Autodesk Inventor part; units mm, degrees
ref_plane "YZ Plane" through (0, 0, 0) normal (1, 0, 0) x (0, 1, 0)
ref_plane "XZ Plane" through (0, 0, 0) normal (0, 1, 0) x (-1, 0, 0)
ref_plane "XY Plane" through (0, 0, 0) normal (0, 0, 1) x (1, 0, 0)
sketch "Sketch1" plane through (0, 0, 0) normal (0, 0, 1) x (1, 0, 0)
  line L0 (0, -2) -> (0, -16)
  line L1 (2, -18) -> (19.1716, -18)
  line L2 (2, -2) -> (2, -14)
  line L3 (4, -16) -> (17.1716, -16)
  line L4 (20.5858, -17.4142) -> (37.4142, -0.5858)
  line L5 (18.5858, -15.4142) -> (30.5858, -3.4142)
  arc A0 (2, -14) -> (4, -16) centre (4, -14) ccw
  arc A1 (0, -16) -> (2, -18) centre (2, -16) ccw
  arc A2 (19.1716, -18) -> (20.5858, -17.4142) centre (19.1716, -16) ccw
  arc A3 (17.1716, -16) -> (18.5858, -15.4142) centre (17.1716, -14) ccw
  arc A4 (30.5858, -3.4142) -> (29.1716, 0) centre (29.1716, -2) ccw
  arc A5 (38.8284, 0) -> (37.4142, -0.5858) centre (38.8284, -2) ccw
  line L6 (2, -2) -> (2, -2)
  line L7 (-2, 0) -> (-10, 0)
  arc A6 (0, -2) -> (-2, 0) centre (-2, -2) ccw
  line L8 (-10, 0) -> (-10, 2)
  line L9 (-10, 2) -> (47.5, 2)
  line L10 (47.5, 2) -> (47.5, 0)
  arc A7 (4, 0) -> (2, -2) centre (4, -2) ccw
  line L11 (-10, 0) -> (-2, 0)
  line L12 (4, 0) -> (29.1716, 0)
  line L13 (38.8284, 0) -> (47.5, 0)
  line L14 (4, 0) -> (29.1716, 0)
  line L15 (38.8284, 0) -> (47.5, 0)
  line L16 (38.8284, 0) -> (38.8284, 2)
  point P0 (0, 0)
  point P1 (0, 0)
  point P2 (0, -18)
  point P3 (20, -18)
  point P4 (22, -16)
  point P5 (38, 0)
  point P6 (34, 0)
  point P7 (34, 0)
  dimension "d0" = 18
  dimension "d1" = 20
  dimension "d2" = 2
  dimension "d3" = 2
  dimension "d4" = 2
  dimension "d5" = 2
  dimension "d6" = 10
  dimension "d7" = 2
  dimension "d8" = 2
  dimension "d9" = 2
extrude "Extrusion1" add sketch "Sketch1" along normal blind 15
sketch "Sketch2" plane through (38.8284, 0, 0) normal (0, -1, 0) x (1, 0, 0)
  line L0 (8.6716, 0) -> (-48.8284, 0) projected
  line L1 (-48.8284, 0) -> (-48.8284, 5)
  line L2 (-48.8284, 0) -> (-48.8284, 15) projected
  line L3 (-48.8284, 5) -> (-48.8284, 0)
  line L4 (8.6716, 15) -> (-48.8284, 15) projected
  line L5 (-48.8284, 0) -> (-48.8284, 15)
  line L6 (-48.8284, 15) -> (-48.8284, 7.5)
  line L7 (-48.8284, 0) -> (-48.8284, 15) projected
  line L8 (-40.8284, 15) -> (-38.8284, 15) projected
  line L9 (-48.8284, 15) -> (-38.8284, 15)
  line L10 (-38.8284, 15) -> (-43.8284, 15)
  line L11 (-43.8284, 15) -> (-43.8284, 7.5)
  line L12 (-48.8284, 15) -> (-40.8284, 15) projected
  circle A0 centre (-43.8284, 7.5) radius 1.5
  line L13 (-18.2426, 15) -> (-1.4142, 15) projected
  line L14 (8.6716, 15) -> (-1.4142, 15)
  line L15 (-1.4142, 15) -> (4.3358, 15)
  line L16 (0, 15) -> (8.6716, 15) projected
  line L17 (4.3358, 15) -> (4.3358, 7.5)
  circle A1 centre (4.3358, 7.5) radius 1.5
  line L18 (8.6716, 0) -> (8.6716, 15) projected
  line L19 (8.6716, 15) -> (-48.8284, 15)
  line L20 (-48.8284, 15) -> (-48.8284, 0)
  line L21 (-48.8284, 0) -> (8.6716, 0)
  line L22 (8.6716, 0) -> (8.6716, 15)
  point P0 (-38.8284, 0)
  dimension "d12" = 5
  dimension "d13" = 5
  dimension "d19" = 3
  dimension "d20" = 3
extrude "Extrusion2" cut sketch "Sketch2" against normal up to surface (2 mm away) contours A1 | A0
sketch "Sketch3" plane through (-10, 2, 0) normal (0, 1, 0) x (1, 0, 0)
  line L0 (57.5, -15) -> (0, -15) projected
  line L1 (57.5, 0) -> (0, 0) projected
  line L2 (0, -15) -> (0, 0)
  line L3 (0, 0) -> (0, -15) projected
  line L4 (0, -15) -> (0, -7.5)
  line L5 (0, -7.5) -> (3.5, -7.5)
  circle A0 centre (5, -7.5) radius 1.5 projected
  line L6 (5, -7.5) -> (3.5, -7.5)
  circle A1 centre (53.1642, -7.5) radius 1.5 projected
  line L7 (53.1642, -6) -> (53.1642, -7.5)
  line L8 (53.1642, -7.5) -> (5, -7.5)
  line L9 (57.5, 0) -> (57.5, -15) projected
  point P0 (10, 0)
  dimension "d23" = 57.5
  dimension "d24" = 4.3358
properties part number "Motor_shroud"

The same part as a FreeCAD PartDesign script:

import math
import FreeCAD as App
import Part
import Sketcher
from FreeCAD import Vector

doc = App.newDocument("Part")
body = doc.addObject("PartDesign::Body", "Body")

# Sketch on XY plane
sketch1 = body.newObject("Sketcher::SketchObject", "Sketch")
sketch1.AttachmentSupport = (doc.getObject("XY_Plane"), [""])
sketch1.MapMode = "FlatFace"
sketch1.addGeometry([
    Part.ArcOfCircle(Part.Circle(Vector(-2, -2, 0), Vector(0, 0, 1), 2), math.radians(0), math.radians(90)),  # 0
    Part.LineSegment(Vector(0, -2, 0), Vector(0, -16, 0)),  # 1
    Part.ArcOfCircle(Part.Circle(Vector(2, -16, 0), Vector(0, 0, 1), 2), math.radians(180), math.radians(270)),  # 2
    Part.LineSegment(Vector(2, -18, 0), Vector(19.1716, -18, 0)),  # 3
    Part.ArcOfCircle(Part.Circle(Vector(19.1716, -16, 0), Vector(0, 0, 1), 2), math.radians(-90), math.radians(-45)),  # 4
    Part.LineSegment(Vector(20.5858, -17.4142, 0), Vector(37.4142, -0.5858, 0)),  # 5
    Part.ArcOfCircle(Part.Circle(Vector(38.8284, -2, 0), Vector(0, 0, 1), 2), math.radians(90), math.radians(135)),  # 6
    Part.LineSegment(Vector(38.8284, 0, 0), Vector(47.5, 0, 0)),  # 7
    Part.LineSegment(Vector(47.5, 0, 0), Vector(47.5, 2, 0)),  # 8
    Part.LineSegment(Vector(47.5, 2, 0), Vector(-10, 2, 0)),  # 9
    Part.LineSegment(Vector(-10, 2, 0), Vector(-10, 0, 0)),  # 10
    Part.LineSegment(Vector(-10, 0, 0), Vector(-2, 0, 0)),  # 11
    Part.LineSegment(Vector(2, -14, 0), Vector(2, -2, 0)),  # 12
    Part.ArcOfCircle(Part.Circle(Vector(4, -2, 0), Vector(0, 0, 1), 2), math.radians(90), math.radians(180)),  # 13
    Part.LineSegment(Vector(4, 0, 0), Vector(29.1716, 0, 0)),  # 14
    Part.ArcOfCircle(Part.Circle(Vector(29.1716, -2, 0), Vector(0, 0, 1), 1.999981), math.radians(-45), math.radians(90)),  # 15
    Part.LineSegment(Vector(30.5858, -3.4142, 0), Vector(18.5858, -15.4142, 0)),  # 16
    Part.ArcOfCircle(Part.Circle(Vector(17.1716, -14, 0), Vector(0, 0, 1), 2), math.radians(-90), math.radians(-45)),  # 17
    Part.LineSegment(Vector(17.1716, -16, 0), Vector(4, -16, 0)),  # 18
    Part.ArcOfCircle(Part.Circle(Vector(4, -14, 0), Vector(0, 0, 1), 2), math.radians(180), math.radians(270)),  # 19
], False)
sketch1.addConstraint([
    Sketcher.Constraint("Tangent", 0, 1, 1, 1),
    Sketcher.Constraint("Tangent", 1, 2, 2, 1),
    Sketcher.Constraint("Tangent", 2, 2, 3, 1),
    Sketcher.Constraint("Tangent", 3, 2, 4, 1),
    Sketcher.Constraint("Tangent", 4, 2, 5, 1),
    Sketcher.Constraint("Tangent", 5, 2, 6, 2),
    Sketcher.Constraint("Tangent", 6, 1, 7, 1),
    Sketcher.Constraint("Coincident", 7, 2, 8, 1),
    Sketcher.Constraint("Coincident", 8, 2, 9, 1),
    Sketcher.Constraint("Coincident", 9, 2, 10, 1),
    Sketcher.Constraint("Coincident", 10, 2, 11, 1),
    Sketcher.Constraint("Tangent", 11, 2, 0, 2),
    Sketcher.Constraint("Tangent", 12, 2, 13, 2),
    Sketcher.Constraint("Tangent", 13, 1, 14, 1),
    Sketcher.Constraint("Tangent", 14, 2, 15, 2),
    Sketcher.Constraint("Tangent", 15, 1, 16, 1),
    Sketcher.Constraint("Tangent", 16, 2, 17, 2),
    Sketcher.Constraint("Tangent", 17, 1, 18, 1),
    Sketcher.Constraint("Tangent", 18, 2, 19, 2),
    Sketcher.Constraint("Tangent", 19, 1, 12, 1),
    Sketcher.Constraint("Vertical", 1),
    Sketcher.Constraint("Horizontal", 3),
    Sketcher.Constraint("Horizontal", 7),
    Sketcher.Constraint("Vertical", 8),
    Sketcher.Constraint("Horizontal", 9),
    Sketcher.Constraint("Vertical", 10),
    Sketcher.Constraint("Horizontal", 11),
    Sketcher.Constraint("Vertical", 12),
    Sketcher.Constraint("Horizontal", 14),
    Sketcher.Constraint("Horizontal", 18),
    Sketcher.Constraint("Equal", 0, 2),
    Sketcher.Constraint("Equal", 2, 4),
    Sketcher.Constraint("Equal", 4, 6),
    Sketcher.Constraint("Equal", 6, 13),
    Sketcher.Constraint("Equal", 13, 15),
    Sketcher.Constraint("Equal", 15, 17),
    Sketcher.Constraint("Equal", 17, 19),
    Sketcher.Constraint("PointOnObject", 0, 1, -2),
    Sketcher.Constraint("PointOnObject", 6, 1, -1),
    Sketcher.Constraint("PointOnObject", 10, 2, -1),
    Sketcher.Constraint("PointOnObject", 13, 1, -1),
    Sketcher.Constraint("Parallel", 5, 16),
    Sketcher.Constraint("Horizontal", 1, 2, 17, 1),
    Sketcher.Constraint("Vertical", 2, 2, 12, 2),
    Sketcher.Constraint("Radius", 0, 2.0),
    Sketcher.Constraint("DistanceY", 8, 1, 8, 2, 2.0),
    Sketcher.Constraint("DistanceY", 2, 2, -1, 1, 18.0),
    Sketcher.Constraint("DistanceX", 9, 2, -1, 1, 10.0),
    Sketcher.Constraint("DistanceX", 4, 3, 15, 3, 10.0),
    Sketcher.Constraint("DistanceX", 17, 3, 4, 3, 2.0),
    Sketcher.Constraint("DistanceX", 9, 2, 9, 1, 57.5),
    Sketcher.Constraint("DistanceX", 3, 1, 3, 2, 17.1716),
])
pad1 = body.newObject("PartDesign::Pad", "Pad")
pad1.Profile = sketch1
pad1.Length = 15

# Sketch on XZ plane
sketch2 = body.newObject("Sketcher::SketchObject", "Sketch001")
sketch2.AttachmentSupport = (doc.getObject("XZ_Plane"), [""])
sketch2.MapMode = "FlatFace"
sketch2.addGeometry([
    Part.Circle(Vector(43.1642, 7.5, 0), Vector(0, 0, 1), 1.5),
    Part.Circle(Vector(-5, 7.5, 0), Vector(0, 0, 1), 1.5),
], False)
sketch2.addConstraint([
    Sketcher.Constraint("Equal", 0, 1),
    Sketcher.Constraint("Horizontal", 0, 3, 1, 3),
    Sketcher.Constraint("Diameter", 0, 3.0),
    Sketcher.Constraint("DistanceX", 1, 3, -1, 1, 5.0),
    Sketcher.Constraint("DistanceY", -1, 1, 0, 3, 7.5),
    Sketcher.Constraint("DistanceX", -1, 1, 0, 3, 43.1642),
])
pocket1 = body.newObject("PartDesign::Pocket", "Pocket")
pocket1.Profile = sketch2
pocket1.Length = 2

doc.recompute()
